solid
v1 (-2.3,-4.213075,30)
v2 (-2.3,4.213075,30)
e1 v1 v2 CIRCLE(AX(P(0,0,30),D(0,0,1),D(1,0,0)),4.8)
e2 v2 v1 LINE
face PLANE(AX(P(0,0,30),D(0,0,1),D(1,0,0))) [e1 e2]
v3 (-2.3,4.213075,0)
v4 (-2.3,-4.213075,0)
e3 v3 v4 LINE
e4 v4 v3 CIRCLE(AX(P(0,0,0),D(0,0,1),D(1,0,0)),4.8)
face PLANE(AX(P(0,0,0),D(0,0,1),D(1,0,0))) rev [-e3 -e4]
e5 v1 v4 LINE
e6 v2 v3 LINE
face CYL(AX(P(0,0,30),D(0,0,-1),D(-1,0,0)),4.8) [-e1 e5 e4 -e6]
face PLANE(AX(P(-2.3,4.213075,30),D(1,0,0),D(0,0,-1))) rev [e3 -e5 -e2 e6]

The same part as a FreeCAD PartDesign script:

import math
import FreeCAD as App
import Part
import Sketcher
Q = App.Units.Quantity

doc = App.newDocument("Part")
params = doc.addObject("Spreadsheet::Sheet", "Params")
for row, (alias, value) in enumerate([
    ("sketch1_radius", "4.8 mm"),
    ("pad1_length", "30 mm"),
], start=1):
    params.set(f"A{row}", alias)
    params.set(f"B{row}", "=" + value)
    params.setAlias(f"B{row}", alias)

body = doc.addObject("PartDesign::Body", "Body")

# Sketch on XY plane
sketch1 = doc.addObject("Sketcher::SketchObject", "Sketch")
body.addObject(sketch1)
sketch1.AttachmentSupport = (doc.XY_Plane, [""])
sketch1.MapMode = "FlatFace"
sketch1.addGeometry(Part.LineSegment(App.Vector(-2.3, 4.2, 0), App.Vector(-2.3, -4.2, 0)), False)
sketch1.addGeometry(Part.ArcOfCircle(Part.Circle(App.Vector(0, 0, 0), App.Vector(0, 0, 1), 4.8), math.radians(-119), math.radians(119)), False)
sketch1.addConstraint(Sketcher.Constraint("Coincident", 0, 1, 1, 2))
sketch1.addConstraint(Sketcher.Constraint("Coincident", 1, 1, 0, 2))
sketch1.addConstraint(Sketcher.Constraint("Vertical", 0))
sketch1.addConstraint(Sketcher.Constraint("Coincident", 1, 3, -1, 1))
sketch1.addConstraint(Sketcher.Constraint("Radius", 1, Q("4.8 mm")))
sketch1.addConstraint(Sketcher.Constraint("DistanceX", 0, 1, -1, 1, Q("2.3 mm")))
sketch1.setExpression("Constraints[4]", "Params.sketch1_radius")
pad1 = doc.addObject("PartDesign::Pad", "Pad")
body.addObject(pad1)
pad1.Profile = sketch1
pad1.setExpression("Length", "Params.pad1_length")

doc.recompute()
